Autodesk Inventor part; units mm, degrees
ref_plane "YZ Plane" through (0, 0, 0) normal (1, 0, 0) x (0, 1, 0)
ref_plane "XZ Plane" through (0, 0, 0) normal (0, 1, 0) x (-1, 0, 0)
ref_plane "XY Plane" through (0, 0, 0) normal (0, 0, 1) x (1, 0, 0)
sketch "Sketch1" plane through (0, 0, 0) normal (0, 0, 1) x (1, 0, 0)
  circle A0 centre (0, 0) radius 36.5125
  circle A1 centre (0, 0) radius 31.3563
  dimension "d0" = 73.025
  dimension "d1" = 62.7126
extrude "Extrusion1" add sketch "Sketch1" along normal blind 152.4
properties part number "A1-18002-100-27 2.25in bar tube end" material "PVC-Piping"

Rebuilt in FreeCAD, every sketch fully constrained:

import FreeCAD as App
import Part
import Sketcher
from FreeCAD import Vector
Q = App.Units.Quantity

doc = App.newDocument("Part")
params = doc.addObject("Spreadsheet::Sheet", "Params")
for row, (alias, value) in enumerate([
    ("sketch1_diameter", "2.875 in"),
    ("sketch1_diameter2", "2.469 in"),
    ("pad1_length", "6 in"),
], start=1):
    params.set(f"A{row}", alias)
    params.set(f"B{row}", "=" + value)
    params.setAlias(f"B{row}", alias)

body = doc.addObject("PartDesign::Body", "Body")

sketch1 = body.newObject("Sketcher::SketchObject", "Sketch")
sketch1.AttachmentSupport = (doc.getObject("XY_Plane"), [""])
sketch1.MapMode = "FlatFace"
sketch1.addGeometry(Part.Circle(Vector(0, 0, 0), Vector(0, 0, 1), 36.5125), False)
sketch1.addGeometry(Part.Circle(Vector(0, 0, 0), Vector(0, 0, 1), 31.3563), False)
sketch1.addConstraint(Sketcher.Constraint("Coincident", 0, 3, -1, 1))
sketch1.addConstraint(Sketcher.Constraint("Coincident", 1, 3, -1, 1))
sketch1.addConstraint(Sketcher.Constraint("Diameter", 0, Q("2.875 in")))
sketch1.addConstraint(Sketcher.Constraint("Diameter", 1, Q("2.469 in")))
sketch1.setExpression("Constraints[2]", "Params.sketch1_diameter")
sketch1.setExpression("Constraints[3]", "Params.sketch1_diameter2")
pad1 = body.newObject("PartDesign::Pad", "Pad")
pad1.Profile = sketch1
pad1.setExpression("Length", "Params.pad1_length")

doc.recompute()
